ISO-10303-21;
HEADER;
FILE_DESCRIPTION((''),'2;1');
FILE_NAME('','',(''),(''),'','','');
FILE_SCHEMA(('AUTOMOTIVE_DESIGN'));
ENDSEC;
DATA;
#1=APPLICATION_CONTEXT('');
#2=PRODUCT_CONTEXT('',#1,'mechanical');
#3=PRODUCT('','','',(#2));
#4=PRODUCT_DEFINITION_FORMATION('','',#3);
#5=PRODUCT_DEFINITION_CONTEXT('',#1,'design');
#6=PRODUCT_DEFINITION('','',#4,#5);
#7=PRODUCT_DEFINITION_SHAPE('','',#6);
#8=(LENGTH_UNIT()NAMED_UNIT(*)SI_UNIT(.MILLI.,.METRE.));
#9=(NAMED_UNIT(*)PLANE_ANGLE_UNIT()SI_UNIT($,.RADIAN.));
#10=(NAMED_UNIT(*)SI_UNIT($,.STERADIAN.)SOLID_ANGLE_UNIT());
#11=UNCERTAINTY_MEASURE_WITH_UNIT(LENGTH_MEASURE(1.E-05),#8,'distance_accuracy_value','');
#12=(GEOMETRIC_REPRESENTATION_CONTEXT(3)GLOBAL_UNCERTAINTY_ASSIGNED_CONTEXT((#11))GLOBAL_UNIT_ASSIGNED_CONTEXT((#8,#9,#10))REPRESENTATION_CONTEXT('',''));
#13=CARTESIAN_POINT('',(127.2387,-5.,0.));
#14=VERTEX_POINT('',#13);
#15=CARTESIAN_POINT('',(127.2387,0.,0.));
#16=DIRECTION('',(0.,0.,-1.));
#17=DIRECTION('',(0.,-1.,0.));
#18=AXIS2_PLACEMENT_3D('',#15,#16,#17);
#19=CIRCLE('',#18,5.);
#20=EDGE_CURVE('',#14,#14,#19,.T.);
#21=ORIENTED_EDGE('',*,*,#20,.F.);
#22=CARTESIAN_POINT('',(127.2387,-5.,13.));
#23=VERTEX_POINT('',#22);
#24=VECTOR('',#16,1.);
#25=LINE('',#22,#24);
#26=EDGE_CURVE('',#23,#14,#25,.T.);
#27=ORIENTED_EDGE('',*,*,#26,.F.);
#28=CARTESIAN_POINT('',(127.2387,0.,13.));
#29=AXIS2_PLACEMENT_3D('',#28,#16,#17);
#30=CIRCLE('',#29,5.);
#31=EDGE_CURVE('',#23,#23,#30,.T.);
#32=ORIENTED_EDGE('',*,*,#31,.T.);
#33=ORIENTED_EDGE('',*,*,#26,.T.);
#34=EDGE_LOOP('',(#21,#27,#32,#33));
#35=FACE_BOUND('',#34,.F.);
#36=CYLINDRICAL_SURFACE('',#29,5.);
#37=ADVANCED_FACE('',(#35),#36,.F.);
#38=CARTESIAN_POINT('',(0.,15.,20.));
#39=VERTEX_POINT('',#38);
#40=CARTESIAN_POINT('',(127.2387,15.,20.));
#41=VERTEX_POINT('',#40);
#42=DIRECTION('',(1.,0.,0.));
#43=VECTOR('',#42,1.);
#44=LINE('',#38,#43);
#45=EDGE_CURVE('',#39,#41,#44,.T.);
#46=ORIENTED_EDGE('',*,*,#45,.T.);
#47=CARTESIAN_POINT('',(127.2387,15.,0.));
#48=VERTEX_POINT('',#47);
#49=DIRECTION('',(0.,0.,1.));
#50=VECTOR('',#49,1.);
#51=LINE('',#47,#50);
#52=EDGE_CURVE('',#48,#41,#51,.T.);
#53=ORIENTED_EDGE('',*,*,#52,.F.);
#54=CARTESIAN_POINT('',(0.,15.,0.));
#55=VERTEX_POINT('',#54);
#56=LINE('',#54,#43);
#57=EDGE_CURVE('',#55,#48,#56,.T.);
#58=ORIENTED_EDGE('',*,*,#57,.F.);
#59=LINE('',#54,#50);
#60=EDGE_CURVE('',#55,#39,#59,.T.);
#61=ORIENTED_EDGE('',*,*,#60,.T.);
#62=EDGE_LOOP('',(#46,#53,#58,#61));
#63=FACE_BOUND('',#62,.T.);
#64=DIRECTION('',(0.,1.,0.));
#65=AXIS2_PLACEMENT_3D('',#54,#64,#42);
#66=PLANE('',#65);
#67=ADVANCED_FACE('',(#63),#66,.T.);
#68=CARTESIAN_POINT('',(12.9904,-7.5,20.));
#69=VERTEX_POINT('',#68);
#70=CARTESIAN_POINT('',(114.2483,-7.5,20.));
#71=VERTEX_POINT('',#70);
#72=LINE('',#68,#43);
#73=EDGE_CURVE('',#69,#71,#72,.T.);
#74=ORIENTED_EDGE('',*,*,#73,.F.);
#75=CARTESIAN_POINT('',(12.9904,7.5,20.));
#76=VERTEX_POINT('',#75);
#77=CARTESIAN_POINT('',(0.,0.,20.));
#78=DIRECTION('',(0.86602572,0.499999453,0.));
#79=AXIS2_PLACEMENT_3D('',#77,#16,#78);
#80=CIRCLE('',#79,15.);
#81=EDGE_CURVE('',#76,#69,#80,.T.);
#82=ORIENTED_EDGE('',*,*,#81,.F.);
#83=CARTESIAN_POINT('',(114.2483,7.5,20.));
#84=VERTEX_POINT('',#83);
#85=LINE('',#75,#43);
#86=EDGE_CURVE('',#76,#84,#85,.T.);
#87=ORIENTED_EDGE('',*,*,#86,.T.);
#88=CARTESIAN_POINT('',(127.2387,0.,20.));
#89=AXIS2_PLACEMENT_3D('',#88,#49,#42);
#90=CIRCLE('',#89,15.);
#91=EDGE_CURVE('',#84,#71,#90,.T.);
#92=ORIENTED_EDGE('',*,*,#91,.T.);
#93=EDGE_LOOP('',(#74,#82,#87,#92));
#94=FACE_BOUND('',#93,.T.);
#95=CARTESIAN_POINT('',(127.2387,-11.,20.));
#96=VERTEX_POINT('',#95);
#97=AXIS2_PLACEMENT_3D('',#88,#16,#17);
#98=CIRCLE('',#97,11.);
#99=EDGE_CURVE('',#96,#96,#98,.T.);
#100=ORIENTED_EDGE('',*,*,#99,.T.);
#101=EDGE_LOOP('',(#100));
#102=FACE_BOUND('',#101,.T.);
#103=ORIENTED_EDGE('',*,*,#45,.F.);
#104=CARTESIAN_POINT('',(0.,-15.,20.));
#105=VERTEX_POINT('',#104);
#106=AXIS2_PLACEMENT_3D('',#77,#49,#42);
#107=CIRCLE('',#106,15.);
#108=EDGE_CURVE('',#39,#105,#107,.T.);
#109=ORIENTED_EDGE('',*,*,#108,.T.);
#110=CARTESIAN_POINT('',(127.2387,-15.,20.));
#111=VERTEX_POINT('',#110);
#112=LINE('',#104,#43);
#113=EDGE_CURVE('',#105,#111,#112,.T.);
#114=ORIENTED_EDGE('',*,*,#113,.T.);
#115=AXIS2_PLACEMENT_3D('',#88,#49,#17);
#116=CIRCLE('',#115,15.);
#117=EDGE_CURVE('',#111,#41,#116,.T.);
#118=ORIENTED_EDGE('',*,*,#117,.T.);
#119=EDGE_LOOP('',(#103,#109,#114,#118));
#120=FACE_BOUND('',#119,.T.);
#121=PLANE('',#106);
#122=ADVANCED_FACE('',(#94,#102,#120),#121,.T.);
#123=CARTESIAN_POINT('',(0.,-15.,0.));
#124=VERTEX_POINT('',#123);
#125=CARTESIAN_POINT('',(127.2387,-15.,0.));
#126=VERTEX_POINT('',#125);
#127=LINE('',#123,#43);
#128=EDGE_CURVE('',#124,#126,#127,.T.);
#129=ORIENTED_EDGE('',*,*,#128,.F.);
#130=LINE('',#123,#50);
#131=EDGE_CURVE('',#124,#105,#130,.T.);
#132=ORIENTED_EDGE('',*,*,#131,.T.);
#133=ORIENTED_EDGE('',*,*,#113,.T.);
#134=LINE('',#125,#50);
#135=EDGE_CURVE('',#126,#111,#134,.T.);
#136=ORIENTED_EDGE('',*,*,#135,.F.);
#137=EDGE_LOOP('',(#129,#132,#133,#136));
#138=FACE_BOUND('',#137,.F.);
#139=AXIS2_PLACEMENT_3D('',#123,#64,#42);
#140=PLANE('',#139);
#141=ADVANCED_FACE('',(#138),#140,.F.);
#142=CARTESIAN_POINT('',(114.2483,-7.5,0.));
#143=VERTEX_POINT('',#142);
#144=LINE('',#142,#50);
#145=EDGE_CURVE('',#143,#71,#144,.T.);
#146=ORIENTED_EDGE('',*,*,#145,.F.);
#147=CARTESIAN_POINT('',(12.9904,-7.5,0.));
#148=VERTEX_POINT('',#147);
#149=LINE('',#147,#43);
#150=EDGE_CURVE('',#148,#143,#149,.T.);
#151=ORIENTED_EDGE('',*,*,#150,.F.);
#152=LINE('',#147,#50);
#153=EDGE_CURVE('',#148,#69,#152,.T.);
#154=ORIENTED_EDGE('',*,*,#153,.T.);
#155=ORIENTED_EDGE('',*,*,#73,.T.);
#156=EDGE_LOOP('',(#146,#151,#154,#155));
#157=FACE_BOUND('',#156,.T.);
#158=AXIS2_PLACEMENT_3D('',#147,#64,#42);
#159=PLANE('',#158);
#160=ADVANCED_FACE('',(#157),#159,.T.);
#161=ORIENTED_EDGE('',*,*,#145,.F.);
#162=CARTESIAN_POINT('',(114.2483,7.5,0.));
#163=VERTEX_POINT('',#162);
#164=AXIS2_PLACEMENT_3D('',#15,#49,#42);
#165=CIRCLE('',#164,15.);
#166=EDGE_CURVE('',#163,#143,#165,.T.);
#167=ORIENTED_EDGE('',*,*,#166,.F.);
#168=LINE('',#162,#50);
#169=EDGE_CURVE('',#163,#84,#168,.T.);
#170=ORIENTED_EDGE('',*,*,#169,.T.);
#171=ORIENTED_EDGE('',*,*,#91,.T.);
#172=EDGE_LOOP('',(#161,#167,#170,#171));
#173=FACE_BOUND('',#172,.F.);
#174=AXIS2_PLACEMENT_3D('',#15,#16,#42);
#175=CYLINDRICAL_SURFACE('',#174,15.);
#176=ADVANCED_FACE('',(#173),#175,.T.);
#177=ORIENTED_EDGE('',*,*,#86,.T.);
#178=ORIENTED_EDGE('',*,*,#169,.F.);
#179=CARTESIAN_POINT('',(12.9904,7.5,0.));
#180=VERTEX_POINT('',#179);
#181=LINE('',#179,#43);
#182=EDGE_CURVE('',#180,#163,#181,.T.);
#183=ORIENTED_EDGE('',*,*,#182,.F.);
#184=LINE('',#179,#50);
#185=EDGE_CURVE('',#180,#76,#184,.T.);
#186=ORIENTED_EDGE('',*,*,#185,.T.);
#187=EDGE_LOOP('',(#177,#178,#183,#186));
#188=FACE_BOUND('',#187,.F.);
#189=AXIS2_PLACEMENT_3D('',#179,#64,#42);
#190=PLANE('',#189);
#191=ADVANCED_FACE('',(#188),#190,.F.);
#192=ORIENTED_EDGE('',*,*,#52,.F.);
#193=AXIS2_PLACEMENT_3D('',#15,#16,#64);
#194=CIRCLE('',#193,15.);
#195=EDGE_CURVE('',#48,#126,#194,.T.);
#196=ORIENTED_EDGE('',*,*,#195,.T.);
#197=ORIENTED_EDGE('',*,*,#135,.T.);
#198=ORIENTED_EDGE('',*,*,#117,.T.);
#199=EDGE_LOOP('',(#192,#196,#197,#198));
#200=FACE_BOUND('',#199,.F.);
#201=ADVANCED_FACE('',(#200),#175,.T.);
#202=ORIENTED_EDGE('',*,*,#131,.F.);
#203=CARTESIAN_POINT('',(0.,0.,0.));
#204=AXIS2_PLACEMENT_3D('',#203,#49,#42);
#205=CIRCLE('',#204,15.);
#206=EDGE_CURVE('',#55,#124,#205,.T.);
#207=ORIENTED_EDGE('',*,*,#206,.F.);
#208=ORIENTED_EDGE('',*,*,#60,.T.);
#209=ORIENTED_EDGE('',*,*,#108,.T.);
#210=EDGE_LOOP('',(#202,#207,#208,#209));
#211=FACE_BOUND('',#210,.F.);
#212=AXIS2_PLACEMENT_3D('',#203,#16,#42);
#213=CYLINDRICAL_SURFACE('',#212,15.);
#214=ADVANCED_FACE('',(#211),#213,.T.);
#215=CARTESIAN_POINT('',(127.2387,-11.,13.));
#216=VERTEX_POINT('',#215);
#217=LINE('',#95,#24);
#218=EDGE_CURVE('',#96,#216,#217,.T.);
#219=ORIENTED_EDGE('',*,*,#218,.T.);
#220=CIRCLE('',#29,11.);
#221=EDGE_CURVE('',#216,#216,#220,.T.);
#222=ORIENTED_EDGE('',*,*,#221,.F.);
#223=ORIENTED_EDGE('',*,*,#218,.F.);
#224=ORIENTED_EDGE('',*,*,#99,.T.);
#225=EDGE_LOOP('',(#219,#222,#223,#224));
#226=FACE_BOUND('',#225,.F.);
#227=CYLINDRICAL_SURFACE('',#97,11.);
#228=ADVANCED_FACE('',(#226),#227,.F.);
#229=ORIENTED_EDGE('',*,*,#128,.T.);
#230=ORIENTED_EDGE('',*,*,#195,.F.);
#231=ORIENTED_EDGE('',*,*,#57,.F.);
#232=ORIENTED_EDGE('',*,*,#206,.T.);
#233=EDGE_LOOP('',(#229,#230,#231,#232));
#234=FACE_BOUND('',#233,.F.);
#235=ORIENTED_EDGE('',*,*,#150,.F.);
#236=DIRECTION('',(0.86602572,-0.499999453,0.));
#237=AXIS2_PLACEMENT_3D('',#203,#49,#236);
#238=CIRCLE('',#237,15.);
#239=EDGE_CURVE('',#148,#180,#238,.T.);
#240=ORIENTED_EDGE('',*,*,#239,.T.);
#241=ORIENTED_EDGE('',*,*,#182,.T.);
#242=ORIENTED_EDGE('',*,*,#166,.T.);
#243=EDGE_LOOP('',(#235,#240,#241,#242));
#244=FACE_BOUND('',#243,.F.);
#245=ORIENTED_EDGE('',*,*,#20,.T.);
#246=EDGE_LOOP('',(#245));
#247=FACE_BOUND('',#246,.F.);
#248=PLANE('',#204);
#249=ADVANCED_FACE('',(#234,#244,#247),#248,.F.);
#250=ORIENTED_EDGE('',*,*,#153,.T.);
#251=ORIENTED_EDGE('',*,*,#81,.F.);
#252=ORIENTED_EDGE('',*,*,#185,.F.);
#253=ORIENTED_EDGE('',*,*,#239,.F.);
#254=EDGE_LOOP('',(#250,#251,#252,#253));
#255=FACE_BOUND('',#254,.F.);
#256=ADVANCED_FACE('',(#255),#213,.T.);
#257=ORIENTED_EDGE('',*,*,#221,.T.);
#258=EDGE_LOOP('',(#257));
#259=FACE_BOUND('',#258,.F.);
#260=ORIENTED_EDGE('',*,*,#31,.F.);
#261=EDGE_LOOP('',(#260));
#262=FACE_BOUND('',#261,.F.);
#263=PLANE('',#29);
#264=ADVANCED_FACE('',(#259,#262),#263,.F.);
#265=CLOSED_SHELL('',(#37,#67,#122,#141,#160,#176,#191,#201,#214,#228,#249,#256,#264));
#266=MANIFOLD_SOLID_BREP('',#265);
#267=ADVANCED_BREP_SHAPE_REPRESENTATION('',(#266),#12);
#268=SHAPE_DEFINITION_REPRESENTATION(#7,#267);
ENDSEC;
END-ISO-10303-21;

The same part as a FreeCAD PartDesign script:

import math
import FreeCAD as App
import Part
import Sketcher
Q = App.Units.Quantity

doc = App.newDocument("Part")
body = doc.addObject("PartDesign::Body", "Body")

# Sketch on XY plane
sketch1 = body.newObject("Sketcher::SketchObject", "Sketch")
sketch1.AttachmentSupport = (doc.getObject("XY_Plane"), [""])
sketch1.MapMode = "FlatFace"
sketch1.addGeometry([
    Part.ArcOfCircle(Part.Circle(App.Vector(0, 0, 0), App.Vector(0, 0, 1), 15), math.radians(90), math.radians(270)),  # 0
    Part.LineSegment(App.Vector(0, -15, 0), App.Vector(127, -15, 0)),  # 1
    Part.ArcOfCircle(Part.Circle(App.Vector(127, 0, 0), App.Vector(0, 0, 1), 15), math.radians(-90), math.radians(90)),  # 2
    Part.LineSegment(App.Vector(127, 15, 0), App.Vector(0, 15, 0)),  # 3
    Part.ArcOfCircle(Part.Circle(App.Vector(0, 0, 0), App.Vector(0, 0, 1), 15), math.radians(-30), math.radians(30)),  # 4
    Part.LineSegment(App.Vector(13, 8, 0), App.Vector(114, 8, 0)),  # 5
    Part.ArcOfCircle(Part.Circle(App.Vector(127, 0, 0), App.Vector(0, 0, 1), 15), math.radians(150), math.radians(210)),  # 6
    Part.LineSegment(App.Vector(114, -8, 0), App.Vector(13, -8, 0)),  # 7
], False)
sketch1.addConstraint([
    Sketcher.Constraint("Tangent", 0, 2, 1, 1),
    Sketcher.Constraint("Tangent", 1, 2, 2, 1),
    Sketcher.Constraint("Tangent", 2, 2, 3, 1),
    Sketcher.Constraint("Tangent", 3, 2, 0, 1),
    Sketcher.Constraint("Coincident", 4, 2, 5, 1),
    Sketcher.Constraint("Coincident", 5, 2, 6, 1),
    Sketcher.Constraint("Coincident", 6, 2, 7, 1),
    Sketcher.Constraint("Coincident", 7, 2, 4, 1),
    Sketcher.Constraint("Horizontal", 1),
    Sketcher.Constraint("Horizontal", 3),
    Sketcher.Constraint("Horizontal", 5),
    Sketcher.Constraint("Horizontal", 7),
    Sketcher.Constraint("Coincident", 0, 3, -1, 1),
    Sketcher.Constraint("Coincident", 4, 3, -1, 1),
    Sketcher.Constraint("Coincident", 6, 3, 2, 3),
    Sketcher.Constraint("Equal", 2, 4),
    Sketcher.Constraint("Equal", 4, 6),
    Sketcher.Constraint("Vertical", 5, 2, 6, 2),
    Sketcher.Constraint("Radius", 0, Q("15 mm")),
    Sketcher.Constraint("DistanceY", -1, 1, 4, 2, Q("7.5 mm")),
    Sketcher.Constraint("DistanceX", 1, 1, 1, 2, Q("127.2387 mm")),
])
pad1 = body.newObject("PartDesign::Pad", "Pad")
pad1.Profile = sketch1
pad1.Length = 20

# Sketch on XY plane
sketch2 = body.newObject("Sketcher::SketchObject", "Sketch001")
sketch2.AttachmentSupport = (doc.getObject("XY_Plane"), [""])
sketch2.MapMode = "FlatFace"
sketch2.AttachmentOffset = App.Placement(App.Vector(0, 0, 20), App.Rotation())
sketch2.addGeometry(Part.Circle(App.Vector(127, 0, 0), App.Vector(0, 0, 1), 5), False)
sketch2.addConstraint([
    Sketcher.Constraint("PointOnObject", 0, 3, -1),
    Sketcher.Constraint("Diameter", 0, Q("10 mm")),
    Sketcher.Constraint("DistanceX", -1, 1, 0, 3, Q("127.2387 mm")),
])
doc.recompute()
hole = body.newObject("PartDesign::Hole", "Hole")
hole.Profile = sketch2
hole.ThreadType = "None"
hole.Diameter = 10
hole.DepthType = "ThroughAll"
hole.HoleCutType = "Counterbore"
hole.HoleCutDiameter = 22
hole.HoleCutDepth = 7

doc.recompute()
